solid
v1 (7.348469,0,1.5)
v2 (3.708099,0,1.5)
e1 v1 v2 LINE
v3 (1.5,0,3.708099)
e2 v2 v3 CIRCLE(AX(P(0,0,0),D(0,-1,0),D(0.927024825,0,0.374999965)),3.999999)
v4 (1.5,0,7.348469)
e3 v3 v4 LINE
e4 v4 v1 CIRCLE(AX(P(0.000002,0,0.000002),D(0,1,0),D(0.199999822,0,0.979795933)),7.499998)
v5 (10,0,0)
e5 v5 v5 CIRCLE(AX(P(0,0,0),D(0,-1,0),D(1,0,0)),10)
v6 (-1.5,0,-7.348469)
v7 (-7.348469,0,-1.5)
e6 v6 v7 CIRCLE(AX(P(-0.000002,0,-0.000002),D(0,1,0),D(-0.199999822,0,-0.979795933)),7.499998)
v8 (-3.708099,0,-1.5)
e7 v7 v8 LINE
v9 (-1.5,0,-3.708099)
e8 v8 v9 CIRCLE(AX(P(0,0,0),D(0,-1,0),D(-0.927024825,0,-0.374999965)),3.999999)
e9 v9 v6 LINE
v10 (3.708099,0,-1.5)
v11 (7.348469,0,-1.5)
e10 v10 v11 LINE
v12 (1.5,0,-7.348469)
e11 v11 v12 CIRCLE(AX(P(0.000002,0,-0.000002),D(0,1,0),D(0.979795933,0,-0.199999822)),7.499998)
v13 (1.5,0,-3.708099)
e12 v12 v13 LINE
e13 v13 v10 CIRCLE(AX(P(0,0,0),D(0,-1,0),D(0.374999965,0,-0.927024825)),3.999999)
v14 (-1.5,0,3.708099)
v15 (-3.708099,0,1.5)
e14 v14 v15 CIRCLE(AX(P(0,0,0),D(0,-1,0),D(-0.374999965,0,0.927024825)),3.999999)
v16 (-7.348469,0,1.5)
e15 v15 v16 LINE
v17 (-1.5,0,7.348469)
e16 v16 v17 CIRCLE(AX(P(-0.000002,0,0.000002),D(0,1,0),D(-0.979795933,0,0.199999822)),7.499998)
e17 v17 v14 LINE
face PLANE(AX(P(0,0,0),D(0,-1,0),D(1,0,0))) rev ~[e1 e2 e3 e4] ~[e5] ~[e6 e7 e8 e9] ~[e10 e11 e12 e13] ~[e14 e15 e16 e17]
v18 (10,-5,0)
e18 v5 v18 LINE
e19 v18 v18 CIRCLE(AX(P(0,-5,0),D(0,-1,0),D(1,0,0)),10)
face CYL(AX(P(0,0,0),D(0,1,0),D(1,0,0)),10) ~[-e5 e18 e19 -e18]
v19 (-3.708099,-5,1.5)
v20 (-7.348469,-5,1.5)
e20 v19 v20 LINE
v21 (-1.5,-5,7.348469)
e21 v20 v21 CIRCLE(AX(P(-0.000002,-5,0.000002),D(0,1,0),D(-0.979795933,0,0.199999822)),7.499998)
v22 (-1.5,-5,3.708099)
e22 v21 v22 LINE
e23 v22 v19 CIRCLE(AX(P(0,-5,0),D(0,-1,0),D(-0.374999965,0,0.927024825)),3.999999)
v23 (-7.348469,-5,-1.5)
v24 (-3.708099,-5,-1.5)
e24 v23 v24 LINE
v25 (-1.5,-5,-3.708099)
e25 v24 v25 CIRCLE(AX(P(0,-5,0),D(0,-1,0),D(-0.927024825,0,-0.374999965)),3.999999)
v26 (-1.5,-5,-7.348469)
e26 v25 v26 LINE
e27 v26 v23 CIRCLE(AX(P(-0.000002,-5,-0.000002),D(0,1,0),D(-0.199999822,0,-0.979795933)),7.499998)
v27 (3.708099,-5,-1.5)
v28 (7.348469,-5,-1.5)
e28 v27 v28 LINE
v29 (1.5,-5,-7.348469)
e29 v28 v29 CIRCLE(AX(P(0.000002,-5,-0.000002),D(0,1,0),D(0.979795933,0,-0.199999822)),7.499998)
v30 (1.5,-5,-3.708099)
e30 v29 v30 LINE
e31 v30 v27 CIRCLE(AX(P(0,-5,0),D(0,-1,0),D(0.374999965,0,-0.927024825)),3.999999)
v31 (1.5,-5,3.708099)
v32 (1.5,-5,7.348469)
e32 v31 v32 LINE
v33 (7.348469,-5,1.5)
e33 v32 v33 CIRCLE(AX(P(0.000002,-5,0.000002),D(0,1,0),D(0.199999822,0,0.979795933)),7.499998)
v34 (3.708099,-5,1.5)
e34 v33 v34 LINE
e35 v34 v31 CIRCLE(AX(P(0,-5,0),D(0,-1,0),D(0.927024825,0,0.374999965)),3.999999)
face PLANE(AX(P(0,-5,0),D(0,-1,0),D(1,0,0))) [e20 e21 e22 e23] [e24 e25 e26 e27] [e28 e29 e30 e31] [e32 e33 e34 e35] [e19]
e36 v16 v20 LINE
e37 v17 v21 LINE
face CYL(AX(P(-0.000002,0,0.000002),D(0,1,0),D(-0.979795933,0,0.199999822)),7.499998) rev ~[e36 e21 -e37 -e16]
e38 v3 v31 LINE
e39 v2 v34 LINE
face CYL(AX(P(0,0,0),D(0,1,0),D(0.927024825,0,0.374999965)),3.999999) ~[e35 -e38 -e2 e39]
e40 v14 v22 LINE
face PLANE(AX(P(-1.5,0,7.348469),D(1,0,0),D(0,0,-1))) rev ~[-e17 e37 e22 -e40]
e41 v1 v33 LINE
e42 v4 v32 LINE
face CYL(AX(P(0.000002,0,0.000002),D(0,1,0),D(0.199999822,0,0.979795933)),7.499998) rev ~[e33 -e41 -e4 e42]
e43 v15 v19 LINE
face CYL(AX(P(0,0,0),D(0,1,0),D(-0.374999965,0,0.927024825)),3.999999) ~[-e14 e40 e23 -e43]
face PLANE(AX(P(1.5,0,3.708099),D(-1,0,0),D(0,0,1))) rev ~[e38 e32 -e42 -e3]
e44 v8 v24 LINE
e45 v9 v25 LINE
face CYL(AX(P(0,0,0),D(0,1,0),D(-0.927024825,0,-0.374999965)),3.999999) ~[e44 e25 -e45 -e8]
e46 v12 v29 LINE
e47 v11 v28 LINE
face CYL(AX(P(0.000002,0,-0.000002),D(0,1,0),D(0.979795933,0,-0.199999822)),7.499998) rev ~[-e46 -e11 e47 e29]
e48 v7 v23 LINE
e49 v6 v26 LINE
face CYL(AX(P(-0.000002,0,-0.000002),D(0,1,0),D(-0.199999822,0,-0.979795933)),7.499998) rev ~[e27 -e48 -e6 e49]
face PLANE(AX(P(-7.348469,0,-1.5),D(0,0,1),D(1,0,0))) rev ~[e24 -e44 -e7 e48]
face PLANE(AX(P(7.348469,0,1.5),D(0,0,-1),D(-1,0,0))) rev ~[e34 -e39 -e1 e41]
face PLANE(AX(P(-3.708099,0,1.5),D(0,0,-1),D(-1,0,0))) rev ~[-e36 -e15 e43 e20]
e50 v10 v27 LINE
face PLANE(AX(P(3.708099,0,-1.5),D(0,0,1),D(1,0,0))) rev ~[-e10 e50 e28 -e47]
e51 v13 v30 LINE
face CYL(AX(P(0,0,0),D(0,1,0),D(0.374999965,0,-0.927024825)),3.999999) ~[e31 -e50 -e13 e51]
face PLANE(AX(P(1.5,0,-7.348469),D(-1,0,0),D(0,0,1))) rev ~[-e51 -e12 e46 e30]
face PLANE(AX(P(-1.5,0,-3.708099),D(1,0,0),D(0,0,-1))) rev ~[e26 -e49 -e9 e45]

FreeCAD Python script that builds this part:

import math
import FreeCAD as App
import Part
import Sketcher

V = App.Vector
Q = App.Units.Quantity

doc = App.newDocument("Part")
body = doc.addObject("PartDesign::Body", "Body")

sketch1 = body.newObject("Sketcher::SketchObject", "Sketch")
sketch1.AttachmentSupport = (doc.getObject("XZ_Plane"), [""])
sketch1.MapMode = "FlatFace"
sketch1.addGeometry([
    Part.Circle(V(0, 0, 0), V(0, 0, 1), 10),
    Part.LineSegment(V(-7.3, -1.5, 0), V(-3.7, -1.5, 0)),
    Part.ArcOfCircle(Part.Circle(V(0, 0, 0), V(0, 0, 1), 4), math.radians(-158), math.radians(-112)),
    Part.LineSegment(V(-1.5, -3.7, 0), V(-1.5, -7.3, 0)),
    Part.ArcOfCircle(Part.Circle(V(0, 0, 0), V(0, 0, 1), 7.5), math.radians(-168), math.radians(-102)),
    Part.ArcOfCircle(Part.Circle(V(0, 0, 0), V(0, 0, 1), 4), math.radians(-68), math.radians(-22)),
    Part.LineSegment(V(3.7, -1.5, 0), V(7.3, -1.5, 0)),
    Part.ArcOfCircle(Part.Circle(V(0, 0, 0), V(0, 0, 1), 7.5), math.radians(-78), math.radians(-12)),
    Part.LineSegment(V(1.5, -7.3, 0), V(1.5, -3.7, 0)),
    Part.ArcOfCircle(Part.Circle(V(0, 0, 0), V(0, 0, 1), 7.5), math.radians(102), math.radians(168)),
    Part.LineSegment(V(-1.5, 7.3, 0), V(-1.5, 3.7, 0)),
    Part.ArcOfCircle(Part.Circle(V(0, 0, 0), V(0, 0, 1), 4), math.radians(112), math.radians(158)),
    Part.LineSegment(V(-3.7, 1.5, 0), V(-7.3, 1.5, 0)),
    Part.ArcOfCircle(Part.Circle(V(0, 0, 0), V(0, 0, 1), 4), math.radians(22), math.radians(68)),
    Part.LineSegment(V(1.5, 3.7, 0), V(1.5, 7.3, 0)),
    Part.ArcOfCircle(Part.Circle(V(0, 0, 0), V(0, 0, 1), 7.5), math.radians(12), math.radians(78)),
    Part.LineSegment(V(7.3, 1.5, 0), V(3.7, 1.5, 0)),
], False)
sketch1.addConstraint([
    Sketcher.Constraint("Coincident", 1, 2, 2, 1),
    Sketcher.Constraint("Coincident", 2, 2, 3, 1),
    Sketcher.Constraint("Coincident", 3, 2, 4, 2),
    Sketcher.Constraint("Coincident", 4, 1, 1, 1),
    Sketcher.Constraint("Coincident", 5, 2, 6, 1),
    Sketcher.Constraint("Coincident", 6, 2, 7, 2),
    Sketcher.Constraint("Coincident", 7, 1, 8, 1),
    Sketcher.Constraint("Coincident", 8, 2, 5, 1),
    Sketcher.Constraint("Coincident", 9, 1, 10, 1),
    Sketcher.Constraint("Coincident", 10, 2, 11, 1),
    Sketcher.Constraint("Coincident", 11, 2, 12, 1),
    Sketcher.Constraint("Coincident", 12, 2, 9, 2),
    Sketcher.Constraint("Coincident", 13, 2, 14, 1),
    Sketcher.Constraint("Coincident", 14, 2, 15, 2),
    Sketcher.Constraint("Coincident", 15, 1, 16, 1),
    Sketcher.Constraint("Coincident", 16, 2, 13, 1),
    Sketcher.Constraint("Horizontal", 1),
    Sketcher.Constraint("Vertical", 3),
    Sketcher.Constraint("Horizontal", 6),
    Sketcher.Constraint("Vertical", 8),
    Sketcher.Constraint("Vertical", 10),
    Sketcher.Constraint("Horizontal", 12),
    Sketcher.Constraint("Vertical", 14),
    Sketcher.Constraint("Horizontal", 16),
    Sketcher.Constraint("Coincident", 0, 3, -1, 1),
    Sketcher.Constraint("Coincident", 2, 3, -1, 1),
    Sketcher.Constraint("Coincident", 4, 3, -1, 1),
    Sketcher.Constraint("Coincident", 5, 3, -1, 1),
    Sketcher.Constraint("Coincident", 7, 3, -1, 1),
    Sketcher.Constraint("Coincident", 9, 3, -1, 1),
    Sketcher.Constraint("Coincident", 11, 3, -1, 1),
    Sketcher.Constraint("Coincident", 13, 3, -1, 1),
    Sketcher.Constraint("Coincident", 15, 3, -1, 1),
    Sketcher.Constraint("Equal", 2, 5),
    Sketcher.Constraint("Equal", 4, 7),
    Sketcher.Constraint("Equal", 7, 9),
    Sketcher.Constraint("Equal", 5, 11),
    Sketcher.Constraint("Equal", 11, 13),
    Sketcher.Constraint("Equal", 9, 15),
    Sketcher.Constraint("Horizontal", 4, 1, 5, 2),
    Sketcher.Constraint("Horizontal", 3, 2, 7, 1),
    Sketcher.Constraint("Horizontal", 10, 2, 13, 2),
    Sketcher.Constraint("Horizontal", 12, 2, 15, 1),
    Sketcher.Constraint("Vertical", 3, 2, 9, 1),
    Sketcher.Constraint("Vertical", 1, 2, 11, 2),
    Sketcher.Constraint("Equal", 16, 3),
    Sketcher.Constraint("Diameter", 0, Q("20 mm")),
    Sketcher.Constraint("Radius", 2, Q("3.999999 mm")),
    Sketcher.Constraint("DistanceX", 3, 2, 7, 1, Q("3 mm")),
    Sketcher.Constraint("Radius", 4, Q("7.499998 mm")),
])
pad1 = body.newObject("PartDesign::Pad", "Pad")
pad1.Profile = sketch1
pad1.Length = 5

doc.recompute()
